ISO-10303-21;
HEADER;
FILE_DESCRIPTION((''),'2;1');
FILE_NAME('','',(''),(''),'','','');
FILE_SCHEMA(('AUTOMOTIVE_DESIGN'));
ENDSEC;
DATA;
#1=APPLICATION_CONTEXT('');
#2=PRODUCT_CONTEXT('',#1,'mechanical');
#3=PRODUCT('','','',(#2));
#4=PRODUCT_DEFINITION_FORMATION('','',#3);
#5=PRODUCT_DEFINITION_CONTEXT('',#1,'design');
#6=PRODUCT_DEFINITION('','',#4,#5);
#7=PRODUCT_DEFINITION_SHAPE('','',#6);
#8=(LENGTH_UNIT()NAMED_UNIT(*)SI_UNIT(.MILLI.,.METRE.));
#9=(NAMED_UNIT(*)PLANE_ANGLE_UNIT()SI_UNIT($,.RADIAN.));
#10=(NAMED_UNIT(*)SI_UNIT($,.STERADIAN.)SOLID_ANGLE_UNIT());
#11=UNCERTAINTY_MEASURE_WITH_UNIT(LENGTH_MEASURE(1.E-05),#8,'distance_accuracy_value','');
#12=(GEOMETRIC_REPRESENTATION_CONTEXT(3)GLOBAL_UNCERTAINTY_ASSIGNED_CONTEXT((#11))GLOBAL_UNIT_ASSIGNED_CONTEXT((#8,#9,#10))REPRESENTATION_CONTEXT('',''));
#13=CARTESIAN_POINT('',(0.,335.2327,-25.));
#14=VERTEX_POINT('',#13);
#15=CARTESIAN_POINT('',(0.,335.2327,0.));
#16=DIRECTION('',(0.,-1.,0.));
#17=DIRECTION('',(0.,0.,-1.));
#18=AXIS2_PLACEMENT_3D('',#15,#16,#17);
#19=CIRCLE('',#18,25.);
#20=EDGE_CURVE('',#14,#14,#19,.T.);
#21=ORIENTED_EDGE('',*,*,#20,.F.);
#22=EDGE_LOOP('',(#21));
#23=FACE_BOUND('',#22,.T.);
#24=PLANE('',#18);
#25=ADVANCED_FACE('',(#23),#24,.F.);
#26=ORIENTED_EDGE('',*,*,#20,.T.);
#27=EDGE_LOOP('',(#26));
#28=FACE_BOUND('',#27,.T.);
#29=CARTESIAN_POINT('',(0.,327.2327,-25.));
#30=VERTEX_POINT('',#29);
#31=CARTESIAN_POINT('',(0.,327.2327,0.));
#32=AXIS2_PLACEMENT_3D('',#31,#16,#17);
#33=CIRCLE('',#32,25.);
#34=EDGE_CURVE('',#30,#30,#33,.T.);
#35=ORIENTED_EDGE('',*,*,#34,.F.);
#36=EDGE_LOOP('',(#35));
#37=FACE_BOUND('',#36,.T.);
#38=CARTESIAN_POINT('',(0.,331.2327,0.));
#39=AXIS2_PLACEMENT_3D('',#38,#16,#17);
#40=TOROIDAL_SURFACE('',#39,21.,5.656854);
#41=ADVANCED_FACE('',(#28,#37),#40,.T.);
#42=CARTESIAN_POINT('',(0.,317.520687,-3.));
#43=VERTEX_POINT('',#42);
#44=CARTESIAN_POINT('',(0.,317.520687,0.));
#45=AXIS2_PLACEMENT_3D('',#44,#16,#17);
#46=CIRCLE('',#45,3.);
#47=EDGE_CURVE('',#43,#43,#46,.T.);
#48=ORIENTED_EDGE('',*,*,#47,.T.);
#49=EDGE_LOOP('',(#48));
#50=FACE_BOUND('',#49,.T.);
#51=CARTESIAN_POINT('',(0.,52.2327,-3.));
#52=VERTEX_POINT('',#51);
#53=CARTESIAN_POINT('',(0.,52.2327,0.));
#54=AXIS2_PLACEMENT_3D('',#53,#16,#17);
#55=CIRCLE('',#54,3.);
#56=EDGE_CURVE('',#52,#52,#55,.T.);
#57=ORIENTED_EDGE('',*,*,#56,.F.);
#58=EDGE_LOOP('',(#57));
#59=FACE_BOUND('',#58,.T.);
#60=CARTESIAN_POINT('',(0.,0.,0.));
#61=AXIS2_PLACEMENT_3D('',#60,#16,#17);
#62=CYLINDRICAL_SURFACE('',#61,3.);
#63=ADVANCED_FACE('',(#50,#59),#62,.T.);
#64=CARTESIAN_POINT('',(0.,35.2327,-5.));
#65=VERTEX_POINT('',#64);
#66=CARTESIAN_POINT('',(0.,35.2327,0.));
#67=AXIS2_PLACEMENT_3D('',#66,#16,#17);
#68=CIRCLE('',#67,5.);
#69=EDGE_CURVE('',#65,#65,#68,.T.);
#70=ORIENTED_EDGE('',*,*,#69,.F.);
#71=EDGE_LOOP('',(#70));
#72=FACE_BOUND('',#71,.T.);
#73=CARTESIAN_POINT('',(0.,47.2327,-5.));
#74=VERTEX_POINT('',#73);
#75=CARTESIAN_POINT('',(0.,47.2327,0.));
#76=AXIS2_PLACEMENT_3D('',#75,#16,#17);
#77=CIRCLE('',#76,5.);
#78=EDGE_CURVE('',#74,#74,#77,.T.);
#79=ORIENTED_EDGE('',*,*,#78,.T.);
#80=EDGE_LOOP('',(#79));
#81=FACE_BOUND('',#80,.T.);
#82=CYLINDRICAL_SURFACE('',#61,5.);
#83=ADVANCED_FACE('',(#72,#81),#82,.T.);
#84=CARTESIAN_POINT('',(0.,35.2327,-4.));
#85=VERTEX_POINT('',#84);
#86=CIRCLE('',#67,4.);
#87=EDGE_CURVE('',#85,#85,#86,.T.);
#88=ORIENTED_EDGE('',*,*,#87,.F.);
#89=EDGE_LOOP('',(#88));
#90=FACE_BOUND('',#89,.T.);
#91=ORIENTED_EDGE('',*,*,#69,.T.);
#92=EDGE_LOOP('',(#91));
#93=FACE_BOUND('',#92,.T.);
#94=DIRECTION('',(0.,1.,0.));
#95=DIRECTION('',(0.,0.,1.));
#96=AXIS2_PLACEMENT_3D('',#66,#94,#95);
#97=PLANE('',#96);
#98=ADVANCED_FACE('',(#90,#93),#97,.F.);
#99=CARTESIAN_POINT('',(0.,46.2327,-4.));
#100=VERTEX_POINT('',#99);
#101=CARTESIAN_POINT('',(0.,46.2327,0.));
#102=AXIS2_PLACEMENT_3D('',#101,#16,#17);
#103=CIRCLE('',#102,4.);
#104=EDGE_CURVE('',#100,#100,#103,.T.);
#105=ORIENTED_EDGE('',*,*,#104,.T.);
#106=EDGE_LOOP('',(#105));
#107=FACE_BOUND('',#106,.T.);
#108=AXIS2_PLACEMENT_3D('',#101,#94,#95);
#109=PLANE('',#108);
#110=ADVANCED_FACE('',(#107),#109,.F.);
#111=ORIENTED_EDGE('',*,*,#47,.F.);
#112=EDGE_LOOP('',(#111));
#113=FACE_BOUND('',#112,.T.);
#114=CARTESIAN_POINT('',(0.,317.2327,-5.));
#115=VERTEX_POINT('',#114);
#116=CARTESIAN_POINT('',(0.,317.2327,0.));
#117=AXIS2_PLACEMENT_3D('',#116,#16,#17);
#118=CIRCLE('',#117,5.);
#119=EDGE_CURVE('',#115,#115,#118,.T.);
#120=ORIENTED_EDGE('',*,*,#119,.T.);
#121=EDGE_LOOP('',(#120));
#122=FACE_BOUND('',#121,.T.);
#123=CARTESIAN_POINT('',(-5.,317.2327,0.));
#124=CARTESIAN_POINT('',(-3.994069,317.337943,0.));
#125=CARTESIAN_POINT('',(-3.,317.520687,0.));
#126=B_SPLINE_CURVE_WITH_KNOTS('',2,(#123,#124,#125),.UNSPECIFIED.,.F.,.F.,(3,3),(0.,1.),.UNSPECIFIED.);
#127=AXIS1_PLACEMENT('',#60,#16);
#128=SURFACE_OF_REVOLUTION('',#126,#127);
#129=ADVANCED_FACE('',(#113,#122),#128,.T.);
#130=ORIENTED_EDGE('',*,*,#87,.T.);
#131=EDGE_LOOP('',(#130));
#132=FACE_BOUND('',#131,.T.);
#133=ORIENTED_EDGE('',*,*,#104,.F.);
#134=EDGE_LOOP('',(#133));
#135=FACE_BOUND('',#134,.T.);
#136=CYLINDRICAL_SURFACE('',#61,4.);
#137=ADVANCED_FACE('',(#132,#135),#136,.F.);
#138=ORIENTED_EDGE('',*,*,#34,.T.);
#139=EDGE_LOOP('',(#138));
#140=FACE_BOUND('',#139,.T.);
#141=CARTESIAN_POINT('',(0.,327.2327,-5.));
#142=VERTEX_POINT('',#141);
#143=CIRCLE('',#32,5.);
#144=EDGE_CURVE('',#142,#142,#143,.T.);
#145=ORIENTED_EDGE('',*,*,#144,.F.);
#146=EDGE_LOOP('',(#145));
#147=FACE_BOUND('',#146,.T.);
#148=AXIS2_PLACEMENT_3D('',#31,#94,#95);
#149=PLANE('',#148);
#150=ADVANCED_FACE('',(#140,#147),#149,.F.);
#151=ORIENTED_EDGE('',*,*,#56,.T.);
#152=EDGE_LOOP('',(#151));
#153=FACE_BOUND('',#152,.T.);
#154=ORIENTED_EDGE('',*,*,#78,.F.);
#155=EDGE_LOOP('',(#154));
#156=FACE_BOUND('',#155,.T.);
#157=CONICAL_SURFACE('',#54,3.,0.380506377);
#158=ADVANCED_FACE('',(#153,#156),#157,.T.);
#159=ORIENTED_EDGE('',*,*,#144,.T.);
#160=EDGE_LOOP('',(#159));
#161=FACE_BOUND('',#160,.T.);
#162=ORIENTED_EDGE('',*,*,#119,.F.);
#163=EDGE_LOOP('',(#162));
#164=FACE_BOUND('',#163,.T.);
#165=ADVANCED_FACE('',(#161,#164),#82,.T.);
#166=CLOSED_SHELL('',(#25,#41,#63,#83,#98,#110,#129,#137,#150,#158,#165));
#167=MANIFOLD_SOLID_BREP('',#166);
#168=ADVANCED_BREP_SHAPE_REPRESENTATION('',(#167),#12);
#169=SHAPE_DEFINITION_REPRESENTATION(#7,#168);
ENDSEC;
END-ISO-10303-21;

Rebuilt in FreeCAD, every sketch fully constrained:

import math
import FreeCAD as App
import Part
import Sketcher
Q = App.Units.Quantity

doc = App.newDocument("Part")
body = doc.addObject("PartDesign::Body", "Body")

sketch1 = doc.addObject("Sketcher::SketchObject", "Sketch")
body.addObject(sketch1)
sketch1.AttachmentSupport = (doc.XY_Plane, [""])
sketch1.MapMode = "FlatFace"
sketch1.addGeometry([
    Part.LineSegment(App.Vector(-5, 327.2327, 0), App.Vector(-5, 317.2327, 0)),
    Part.BSplineCurve([App.Vector(-5, 317.2327, 0), App.Vector(-3.994069, 317.337943, 0), App.Vector(-3, 317.520687, 0)], [3, 3], [0, 1], False, 2, [1, 1, 1], False),
    Part.LineSegment(App.Vector(-3, 317.520687, 0), App.Vector(-3, 52.2327, 0)),
    Part.LineSegment(App.Vector(-3, 52.2327, 0), App.Vector(-5, 47.2327, 0)),
    Part.LineSegment(App.Vector(-5, 47.2327, 0), App.Vector(-5, 35.2327, 0)),
    Part.LineSegment(App.Vector(-5, 35.2327, 0), App.Vector(-4, 35.2327, 0)),
    Part.LineSegment(App.Vector(-4, 35.2327, 0), App.Vector(-4, 46.2327, 0)),
    Part.LineSegment(App.Vector(-4, 46.2327, 0), App.Vector(0, 46.2327, 0)),
    Part.LineSegment(App.Vector(0, 46.2327, 0), App.Vector(0, 335.2327, 0)),
    Part.LineSegment(App.Vector(0, 335.2327, 0), App.Vector(-25, 335.2327, 0)),
    Part.ArcOfCircle(Part.Circle(App.Vector(-21, 331.2327, 0), App.Vector(0, 0, 1), 5.656854), math.radians(135), math.radians(225)),
    Part.LineSegment(App.Vector(-25, 327.2327, 0), App.Vector(-5, 327.2327, 0)),
], False)
sketch1.addConstraint([
    Sketcher.Constraint("Block", 1),
    Sketcher.Constraint("Coincident", 0, 2, 1, 1),
    Sketcher.Constraint("Coincident", 1, 2, 2, 1),
    Sketcher.Constraint("Coincident", 2, 2, 3, 1),
    Sketcher.Constraint("Coincident", 3, 2, 4, 1),
    Sketcher.Constraint("Coincident", 4, 2, 5, 1),
    Sketcher.Constraint("Coincident", 5, 2, 6, 1),
    Sketcher.Constraint("Coincident", 6, 2, 7, 1),
    Sketcher.Constraint("Coincident", 7, 2, 8, 1),
    Sketcher.Constraint("Coincident", 8, 2, 9, 1),
    Sketcher.Constraint("Coincident", 9, 2, 10, 1),
    Sketcher.Constraint("Coincident", 10, 2, 11, 1),
    Sketcher.Constraint("Coincident", 11, 2, 0, 1),
    Sketcher.Constraint("Vertical", 0),
    Sketcher.Constraint("Vertical", 2),
    Sketcher.Constraint("Vertical", 4),
    Sketcher.Constraint("Horizontal", 5),
    Sketcher.Constraint("Vertical", 6),
    Sketcher.Constraint("Horizontal", 7),
    Sketcher.Constraint("Vertical", 8),
    Sketcher.Constraint("Horizontal", 9),
    Sketcher.Constraint("Horizontal", 11),
    Sketcher.Constraint("PointOnObject", 7, 2, -2),
    Sketcher.Constraint("Vertical", 0, 2, 3, 2),
    Sketcher.Constraint("Vertical", 9, 2, 10, 2),
    Sketcher.Constraint("DistanceX", 5, 1, 5, 2, Q("1 mm")),
    Sketcher.Constraint("DistanceX", 9, 2, 9, 1, Q("25 mm")),
    Sketcher.Constraint("DistanceY", 0, 2, 0, 1, Q("10 mm")),
    Sketcher.Constraint("DistanceY", 4, 2, 4, 1, Q("12 mm")),
    Sketcher.Constraint("DistanceY", 6, 1, 6, 2, Q("11 mm")),
    Sketcher.Constraint("DistanceY", 8, 1, 8, 2, Q("289 mm")),
    Sketcher.Constraint("DistanceX", 10, 3, -1, 1, Q("21 mm")),
    Sketcher.Constraint("DistanceY", 0, 2, 10, 3, Q("14 mm")),
    Sketcher.Constraint("DistanceY", 2, 2, 0, 2, Q("265 mm")),
])
revolution = doc.addObject("PartDesign::Revolution", "Revolution")
body.addObject(revolution)
revolution.Profile = sketch1
revolution.ReferenceAxis = (sketch1, ["V_Axis"])
revolution.Angle = 360

doc.recompute()
